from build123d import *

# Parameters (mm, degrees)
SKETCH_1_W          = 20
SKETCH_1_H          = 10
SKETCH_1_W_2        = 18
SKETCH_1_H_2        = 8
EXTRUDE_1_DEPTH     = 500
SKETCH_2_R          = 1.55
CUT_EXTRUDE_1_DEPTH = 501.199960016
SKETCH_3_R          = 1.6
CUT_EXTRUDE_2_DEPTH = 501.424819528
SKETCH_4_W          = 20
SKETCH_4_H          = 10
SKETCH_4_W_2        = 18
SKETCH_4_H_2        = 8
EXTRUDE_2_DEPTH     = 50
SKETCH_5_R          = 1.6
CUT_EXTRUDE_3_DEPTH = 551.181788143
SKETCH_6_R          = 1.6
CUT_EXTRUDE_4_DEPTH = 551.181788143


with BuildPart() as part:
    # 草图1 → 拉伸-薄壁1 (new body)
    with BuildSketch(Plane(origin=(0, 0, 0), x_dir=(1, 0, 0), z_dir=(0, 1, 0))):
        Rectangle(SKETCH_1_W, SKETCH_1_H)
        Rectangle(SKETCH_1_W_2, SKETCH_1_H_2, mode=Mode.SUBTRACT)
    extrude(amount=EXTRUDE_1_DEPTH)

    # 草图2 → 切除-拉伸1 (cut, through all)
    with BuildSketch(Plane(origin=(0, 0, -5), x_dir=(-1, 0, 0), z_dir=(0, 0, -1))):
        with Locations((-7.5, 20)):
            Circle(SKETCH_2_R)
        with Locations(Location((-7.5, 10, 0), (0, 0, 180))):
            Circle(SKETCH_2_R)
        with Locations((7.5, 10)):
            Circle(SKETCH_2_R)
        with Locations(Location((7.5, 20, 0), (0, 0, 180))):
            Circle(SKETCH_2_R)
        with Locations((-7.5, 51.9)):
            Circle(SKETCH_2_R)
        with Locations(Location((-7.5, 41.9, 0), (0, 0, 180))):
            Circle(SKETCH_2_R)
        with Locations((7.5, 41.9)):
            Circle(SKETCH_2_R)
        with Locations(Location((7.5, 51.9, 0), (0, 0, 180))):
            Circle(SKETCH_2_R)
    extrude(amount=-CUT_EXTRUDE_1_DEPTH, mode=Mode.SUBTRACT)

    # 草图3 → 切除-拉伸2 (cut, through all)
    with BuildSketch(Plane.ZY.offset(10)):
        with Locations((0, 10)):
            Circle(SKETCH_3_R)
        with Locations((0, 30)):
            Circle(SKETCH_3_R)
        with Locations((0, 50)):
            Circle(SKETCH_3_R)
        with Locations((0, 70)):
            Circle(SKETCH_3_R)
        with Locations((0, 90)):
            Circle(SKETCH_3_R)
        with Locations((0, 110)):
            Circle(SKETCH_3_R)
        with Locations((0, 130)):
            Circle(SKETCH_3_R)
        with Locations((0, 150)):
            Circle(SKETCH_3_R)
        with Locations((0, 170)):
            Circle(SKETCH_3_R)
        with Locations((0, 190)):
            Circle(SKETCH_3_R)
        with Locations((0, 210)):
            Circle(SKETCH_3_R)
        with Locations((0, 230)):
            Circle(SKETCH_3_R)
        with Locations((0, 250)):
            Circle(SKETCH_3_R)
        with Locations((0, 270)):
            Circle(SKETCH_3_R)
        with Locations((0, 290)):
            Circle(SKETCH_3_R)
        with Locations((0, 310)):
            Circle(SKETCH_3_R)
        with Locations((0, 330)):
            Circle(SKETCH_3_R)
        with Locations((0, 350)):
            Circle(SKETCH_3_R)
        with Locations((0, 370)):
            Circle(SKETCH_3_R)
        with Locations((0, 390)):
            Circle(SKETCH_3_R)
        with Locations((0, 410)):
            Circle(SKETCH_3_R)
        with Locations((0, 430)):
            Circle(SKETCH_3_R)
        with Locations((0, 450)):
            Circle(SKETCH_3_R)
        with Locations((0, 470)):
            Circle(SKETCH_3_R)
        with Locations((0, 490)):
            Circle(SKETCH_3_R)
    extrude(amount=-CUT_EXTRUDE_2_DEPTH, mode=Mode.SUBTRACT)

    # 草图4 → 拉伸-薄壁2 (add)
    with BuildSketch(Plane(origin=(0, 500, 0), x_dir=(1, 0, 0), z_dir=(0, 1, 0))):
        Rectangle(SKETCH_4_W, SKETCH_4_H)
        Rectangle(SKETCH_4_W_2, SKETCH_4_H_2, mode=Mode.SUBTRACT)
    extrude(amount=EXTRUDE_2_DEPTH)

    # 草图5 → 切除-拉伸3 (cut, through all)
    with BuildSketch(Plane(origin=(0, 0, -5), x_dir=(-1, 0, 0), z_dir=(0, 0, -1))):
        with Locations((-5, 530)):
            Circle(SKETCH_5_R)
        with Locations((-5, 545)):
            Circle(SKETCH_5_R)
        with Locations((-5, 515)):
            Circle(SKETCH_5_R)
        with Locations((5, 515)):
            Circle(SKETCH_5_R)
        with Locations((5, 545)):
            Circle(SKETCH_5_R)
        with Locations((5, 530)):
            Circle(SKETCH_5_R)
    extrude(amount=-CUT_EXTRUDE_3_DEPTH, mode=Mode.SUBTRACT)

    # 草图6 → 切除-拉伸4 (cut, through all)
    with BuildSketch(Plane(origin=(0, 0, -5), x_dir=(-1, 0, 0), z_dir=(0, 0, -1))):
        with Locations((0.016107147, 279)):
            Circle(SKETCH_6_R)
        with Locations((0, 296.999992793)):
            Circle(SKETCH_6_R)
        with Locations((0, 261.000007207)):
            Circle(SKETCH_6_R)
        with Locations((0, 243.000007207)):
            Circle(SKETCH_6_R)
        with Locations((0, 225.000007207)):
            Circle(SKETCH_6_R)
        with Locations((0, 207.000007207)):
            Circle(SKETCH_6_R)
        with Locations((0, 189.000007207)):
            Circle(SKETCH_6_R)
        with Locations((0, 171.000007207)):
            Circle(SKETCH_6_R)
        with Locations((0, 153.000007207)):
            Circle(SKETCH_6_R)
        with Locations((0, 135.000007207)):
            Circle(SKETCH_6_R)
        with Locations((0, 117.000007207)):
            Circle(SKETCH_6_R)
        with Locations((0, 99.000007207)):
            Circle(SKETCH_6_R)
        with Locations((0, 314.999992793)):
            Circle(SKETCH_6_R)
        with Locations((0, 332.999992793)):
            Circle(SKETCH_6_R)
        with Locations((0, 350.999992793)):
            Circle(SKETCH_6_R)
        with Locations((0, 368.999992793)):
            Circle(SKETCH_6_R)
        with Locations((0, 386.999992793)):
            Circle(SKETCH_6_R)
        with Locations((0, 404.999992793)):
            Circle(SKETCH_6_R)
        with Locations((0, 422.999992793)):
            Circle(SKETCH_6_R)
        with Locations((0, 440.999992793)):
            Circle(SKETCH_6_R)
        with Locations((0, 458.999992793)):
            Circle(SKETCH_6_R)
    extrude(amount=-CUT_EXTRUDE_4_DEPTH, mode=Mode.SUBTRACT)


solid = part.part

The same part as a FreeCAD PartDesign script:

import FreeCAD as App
import Part
import Sketcher
from FreeCAD import Vector
Q = App.Units.Quantity


def add_polygon(sketch, points):
    """Adds a closed chain of lines whose ends are joined by coincident constraints."""
    first, n = sketch.GeometryCount, len(points)
    for a, b in zip(points, points[1:] + points[:1]):
        sketch.addGeometry(Part.LineSegment(App.Vector(*a, 0), App.Vector(*b, 0)), False)
    for i in range(n):
        sketch.addConstraint(Sketcher.Constraint("Coincident", first + i, 2, first + (i + 1) % n, 1))

doc = App.newDocument("Part")
body = doc.addObject("PartDesign::Body", "Body")

# Sketch on XZ plane
sketch1 = doc.addObject("Sketcher::SketchObject", "Sketch")
body.addObject(sketch1)
sketch1.AttachmentSupport = (doc.XZ_Plane, [""])
sketch1.MapMode = "FlatFace"
add_polygon(sketch1, [(-10, -5), (-10, 5), (10, 5), (10, -5)])  # lines 0-3
add_polygon(sketch1, [(9, 4), (-9, 4), (-9, -4), (9, -4)])  # lines 4-7
sketch1.addConstraint(Sketcher.Constraint("Vertical", 0))
sketch1.addConstraint(Sketcher.Constraint("Horizontal", 1))
sketch1.addConstraint(Sketcher.Constraint("Vertical", 2))
sketch1.addConstraint(Sketcher.Constraint("Horizontal", 3))
sketch1.addConstraint(Sketcher.Constraint("Horizontal", 4))
sketch1.addConstraint(Sketcher.Constraint("Vertical", 5))
sketch1.addConstraint(Sketcher.Constraint("Horizontal", 6))
sketch1.addConstraint(Sketcher.Constraint("Vertical", 7))
sketch1.addConstraint(Sketcher.Constraint("Symmetric", 0, 2, 2, 2, -1, 1))
sketch1.addConstraint(Sketcher.Constraint("Symmetric", 4, 2, 6, 2, -1, 1))
sketch1.addConstraint(Sketcher.Constraint("DistanceX", 1, 1, 1, 2, Q("20 mm")))
sketch1.addConstraint(Sketcher.Constraint("DistanceX", 4, 2, 4, 1, Q("18 mm")))
sketch1.addConstraint(Sketcher.Constraint("DistanceY", 0, 1, 0, 2, Q("10 mm")))
sketch1.addConstraint(Sketcher.Constraint("DistanceY", 5, 2, 5, 1, Q("8 mm")))
pad1 = doc.addObject("PartDesign::Pad", "Pad")
body.addObject(pad1)
pad1.Profile = sketch1
pad1.Length = 500
pad1.Reversed = True

# Sketch on XY plane
sketch2 = doc.addObject("Sketcher::SketchObject", "Sketch001")
body.addObject(sketch2)
sketch2.AttachmentSupport = (doc.XY_Plane, [""])
sketch2.MapMode = "FlatFace"
sketch2.AttachmentOffset = App.Placement(Vector(0, 0, -5), App.Rotation())
sketch2.addGeometry(Part.Circle(Vector(7.5, 20, 0), Vector(0, 0, 1), 1.6), False)
sketch2.addGeometry(Part.Circle(Vector(7.5, 10, 0), Vector(0, 0, 1), 1.6), False)
sketch2.addGeometry(Part.Circle(Vector(-7.5, 10, 0), Vector(0, 0, 1), 1.6), False)
sketch2.addGeometry(Part.Circle(Vector(-7.5, 20, 0), Vector(0, 0, 1), 1.6), False)
sketch2.addGeometry(Part.Circle(Vector(7.5, 51.9, 0), Vector(0, 0, 1), 1.6), False)
sketch2.addGeometry(Part.Circle(Vector(7.5, 41.9, 0), Vector(0, 0, 1), 1.6), False)
sketch2.addGeometry(Part.Circle(Vector(-7.5, 41.9, 0), Vector(0, 0, 1), 1.6), False)
sketch2.addGeometry(Part.Circle(Vector(-7.5, 51.9, 0), Vector(0, 0, 1), 1.6), False)
sketch2.addConstraint(Sketcher.Constraint("Equal", 0, 1))
sketch2.addConstraint(Sketcher.Constraint("Equal", 1, 2))
sketch2.addConstraint(Sketcher.Constraint("Equal", 2, 3))
sketch2.addConstraint(Sketcher.Constraint("Equal", 3, 4))
sketch2.addConstraint(Sketcher.Constraint("Equal", 4, 5))
sketch2.addConstraint(Sketcher.Constraint("Equal", 5, 6))
sketch2.addConstraint(Sketcher.Constraint("Equal", 6, 7))
sketch2.addConstraint(Sketcher.Constraint("Symmetric", 1, 3, 2, 3, -2))
sketch2.addConstraint(Sketcher.Constraint("Symmetric", 0, 3, 3, 3, -2))
sketch2.addConstraint(Sketcher.Constraint("Symmetric", 5, 3, 6, 3, -2))
sketch2.addConstraint(Sketcher.Constraint("Symmetric", 4, 3, 7, 3, -2))
sketch2.addConstraint(Sketcher.Constraint("Vertical", 0, 3, 1, 3))
sketch2.addConstraint(Sketcher.Constraint("Vertical", 1, 3, 4, 3))
sketch2.addConstraint(Sketcher.Constraint("Vertical", 4, 3, 5, 3))
sketch2.addConstraint(Sketcher.Constraint("Diameter", 0, Q("3.1 mm")))
sketch2.addConstraint(Sketcher.Constraint("DistanceY", -1, 1, 0, 3, Q("20 mm")))
sketch2.addConstraint(Sketcher.Constraint("DistanceY", -1, 1, 1, 3, Q("10 mm")))
sketch2.addConstraint(Sketcher.Constraint("DistanceX", 2, 3, 1, 3, Q("15 mm")))
sketch2.addConstraint(Sketcher.Constraint("DistanceY", 5, 3, 4, 3, Q("10 mm")))
sketch2.addConstraint(Sketcher.Constraint("DistanceY", -1, 1, 4, 3, Q("51.9 mm")))
pocket1 = doc.addObject("PartDesign::Pocket", "Pocket")
body.addObject(pocket1)
pocket1.Profile = sketch2
pocket1.Type = "ThroughAll"
pocket1.Reversed = True

# Sketch on YZ plane
sketch3 = doc.addObject("Sketcher::SketchObject", "Sketch002")
body.addObject(sketch3)
sketch3.AttachmentSupport = (doc.YZ_Plane, [""])
sketch3.MapMode = "FlatFace"
sketch3.AttachmentOffset = App.Placement(Vector(0, 0, -10), App.Rotation())
sketch3.addGeometry(Part.Circle(Vector(10, 0, 0), Vector(0, 0, 1), 1.6), False)
sketch3.addGeometry(Part.Circle(Vector(30, 0, 0), Vector(0, 0, 1), 1.6), False)
sketch3.addGeometry(Part.Circle(Vector(50, 0, 0), Vector(0, 0, 1), 1.6), False)
sketch3.addGeometry(Part.Circle(Vector(70, 0, 0), Vector(0, 0, 1), 1.6), False)
sketch3.addGeometry(Part.Circle(Vector(90, 0, 0), Vector(0, 0, 1), 1.6), False)
sketch3.addGeometry(Part.Circle(Vector(110, 0, 0), Vector(0, 0, 1), 1.6), False)
sketch3.addGeometry(Part.Circle(Vector(130, 0, 0), Vector(0, 0, 1), 1.6), False)
sketch3.addGeometry(Part.Circle(Vector(150, 0, 0), Vector(0, 0, 1), 1.6), False)
sketch3.addGeometry(Part.Circle(Vector(170, 0, 0), Vector(0, 0, 1), 1.6), False)
sketch3.addGeometry(Part.Circle(Vector(190, 0, 0), Vector(0, 0, 1), 1.6), False)
sketch3.addGeometry(Part.Circle(Vector(210, 0, 0), Vector(0, 0, 1), 1.6), False)
sketch3.addGeometry(Part.Circle(Vector(230, 0, 0), Vector(0, 0, 1), 1.6), False)
sketch3.addGeometry(Part.Circle(Vector(250, 0, 0), Vector(0, 0, 1), 1.6), False)
sketch3.addGeometry(Part.Circle(Vector(270, 0, 0), Vector(0, 0, 1), 1.6), False)
sketch3.addGeometry(Part.Circle(Vector(290, 0, 0), Vector(0, 0, 1), 1.6), False)
sketch3.addGeometry(Part.Circle(Vector(310, 0, 0), Vector(0, 0, 1), 1.6), False)
sketch3.addGeometry(Part.Circle(Vector(330, 0, 0), Vector(0, 0, 1), 1.6), False)
sketch3.addGeometry(Part.Circle(Vector(350, 0, 0), Vector(0, 0, 1), 1.6), False)
sketch3.addGeometry(Part.Circle(Vector(370, 0, 0), Vector(0, 0, 1), 1.6), False)
sketch3.addGeometry(Part.Circle(Vector(390, 0, 0), Vector(0, 0, 1), 1.6), False)
sketch3.addGeometry(Part.Circle(Vector(410, 0, 0), Vector(0, 0, 1), 1.6), False)
sketch3.addGeometry(Part.Circle(Vector(430, 0, 0), Vector(0, 0, 1), 1.6), False)
sketch3.addGeometry(Part.Circle(Vector(450, 0, 0), Vector(0, 0, 1), 1.6), False)
sketch3.addGeometry(Part.Circle(Vector(470, 0, 0), Vector(0, 0, 1), 1.6), False)
sketch3.addGeometry(Part.Circle(Vector(490, 0, 0), Vector(0, 0, 1), 1.6), False)
sketch3.addConstraint(Sketcher.Constraint("Equal", 0, 1))
sketch3.addConstraint(Sketcher.Constraint("Equal", 1, 2))
sketch3.addConstraint(Sketcher.Constraint("Equal", 2, 3))
sketch3.addConstraint(Sketcher.Constraint("Equal", 3, 4))
sketch3.addConstraint(Sketcher.Constraint("Equal", 4, 5))
sketch3.addConstraint(Sketcher.Constraint("Equal", 5, 6))
sketch3.addConstraint(Sketcher.Constraint("Equal", 6, 7))
sketch3.addConstraint(Sketcher.Constraint("Equal", 7, 8))
sketch3.addConstraint(Sketcher.Constraint("Equal", 8, 9))
sketch3.addConstraint(Sketcher.Constraint("Equal", 9, 10))
sketch3.addConstraint(Sketcher.Constraint("Equal", 10, 11))
sketch3.addConstraint(Sketcher.Constraint("Equal", 11, 12))
sketch3.addConstraint(Sketcher.Constraint("Equal", 12, 13))
sketch3.addConstraint(Sketcher.Constraint("Equal", 13, 14))
sketch3.addConstraint(Sketcher.Constraint("Equal", 14, 15))
sketch3.addConstraint(Sketcher.Constraint("Equal", 15, 16))
sketch3.addConstraint(Sketcher.Constraint("Equal", 16, 17))
sketch3.addConstraint(Sketcher.Constraint("Equal", 17, 18))
sketch3.addConstraint(Sketcher.Constraint("Equal", 18, 19))
sketch3.addConstraint(Sketcher.Constraint("Equal", 19, 20))
sketch3.addConstraint(Sketcher.Constraint("Equal", 20, 21))
sketch3.addConstraint(Sketcher.Constraint("Equal", 21, 22))
sketch3.addConstraint(Sketcher.Constraint("Equal", 22, 23))
sketch3.addConstraint(Sketcher.Constraint("Equal", 23, 24))
sketch3.addConstraint(Sketcher.Constraint("PointOnObject", 0, 3, -1))
sketch3.addConstraint(Sketcher.Constraint("PointOnObject", 1, 3, -1))
sketch3.addConstraint(Sketcher.Constraint("PointOnObject", 2, 3, -1))
sketch3.addConstraint(Sketcher.Constraint("PointOnObject", 3, 3, -1))
sketch3.addConstraint(Sketcher.Constraint("PointOnObject", 4, 3, -1))
sketch3.addConstraint(Sketcher.Constraint("PointOnObject", 5, 3, -1))
sketch3.addConstraint(Sketcher.Constraint("PointOnObject", 6, 3, -1))
sketch3.addConstraint(Sketcher.Constraint("PointOnObject", 7, 3, -1))
sketch3.addConstraint(Sketcher.Constraint("PointOnObject", 8, 3, -1))
sketch3.addConstraint(Sketcher.Constraint("PointOnObject", 9, 3, -1))
sketch3.addConstraint(Sketcher.Constraint("PointOnObject", 10, 3, -1))
sketch3.addConstraint(Sketcher.Constraint("PointOnObject", 11, 3, -1))
sketch3.addConstraint(Sketcher.Constraint("PointOnObject", 12, 3, -1))
sketch3.addConstraint(Sketcher.Constraint("PointOnObject", 13, 3, -1))
sketch3.addConstraint(Sketcher.Constraint("PointOnObject", 14, 3, -1))
sketch3.addConstraint(Sketcher.Constraint("PointOnObject", 15, 3, -1))
sketch3.addConstraint(Sketcher.Constraint("PointOnObject", 16, 3, -1))
sketch3.addConstraint(Sketcher.Constraint("PointOnObject", 17, 3, -1))
sketch3.addConstraint(Sketcher.Constraint("PointOnObject", 18, 3, -1))
sketch3.addConstraint(Sketcher.Constraint("PointOnObject", 19, 3, -1))
sketch3.addConstraint(Sketcher.Constraint("PointOnObject", 20, 3, -1))
sketch3.addConstraint(Sketcher.Constraint("PointOnObject", 21, 3, -1))
sketch3.addConstraint(Sketcher.Constraint("PointOnObject", 22, 3, -1))
sketch3.addConstraint(Sketcher.Constraint("PointOnObject", 23, 3, -1))
sketch3.addConstraint(Sketcher.Constraint("PointOnObject", 24, 3, -1))
sketch3.addConstraint(Sketcher.Constraint("Diameter", 0, Q("3.2 mm")))
sketch3.addConstraint(Sketcher.Constraint("DistanceX", -1, 1, 0, 3, Q("10 mm")))
sketch3.addConstraint(Sketcher.Constraint("DistanceX", -1, 1, 1, 3, Q("30 mm")))
sketch3.addConstraint(Sketcher.Constraint("DistanceX", -1, 1, 2, 3, Q("50 mm")))
sketch3.addConstraint(Sketcher.Constraint("DistanceX", -1, 1, 3, 3, Q("70 mm")))
sketch3.addConstraint(Sketcher.Constraint("DistanceX", -1, 1, 4, 3, Q("90 mm")))
sketch3.addConstraint(Sketcher.Constraint("DistanceX", -1, 1, 5, 3, Q("110 mm")))
sketch3.addConstraint(Sketcher.Constraint("DistanceX", -1, 1, 6, 3, Q("130 mm")))
sketch3.addConstraint(Sketcher.Constraint("DistanceX", -1, 1, 7, 3, Q("150 mm")))
sketch3.addConstraint(Sketcher.Constraint("DistanceX", -1, 1, 8, 3, Q("170 mm")))
sketch3.addConstraint(Sketcher.Constraint("DistanceX", -1, 1, 9, 3, Q("190 mm")))
sketch3.addConstraint(Sketcher.Constraint("DistanceX", -1, 1, 10, 3, Q("210 mm")))
sketch3.addConstraint(Sketcher.Constraint("DistanceX", -1, 1, 11, 3, Q("230 mm")))
sketch3.addConstraint(Sketcher.Constraint("DistanceX", -1, 1, 12, 3, Q("250 mm")))
sketch3.addConstraint(Sketcher.Constraint("DistanceX", -1, 1, 13, 3, Q("270 mm")))
sketch3.addConstraint(Sketcher.Constraint("DistanceX", -1, 1, 14, 3, Q("290 mm")))
sketch3.addConstraint(Sketcher.Constraint("DistanceX", -1, 1, 15, 3, Q("310 mm")))
sketch3.addConstraint(Sketcher.Constraint("DistanceX", -1, 1, 16, 3, Q("330 mm")))
sketch3.addConstraint(Sketcher.Constraint("DistanceX", -1, 1, 17, 3, Q("350 mm")))
sketch3.addConstraint(Sketcher.Constraint("DistanceX", -1, 1, 18, 3, Q("370 mm")))
sketch3.addConstraint(Sketcher.Constraint("DistanceX", -1, 1, 19, 3, Q("390 mm")))
sketch3.addConstraint(Sketcher.Constraint("DistanceX", -1, 1, 20, 3, Q("410 mm")))
sketch3.addConstraint(Sketcher.Constraint("DistanceX", -1, 1, 21, 3, Q("430 mm")))
sketch3.addConstraint(Sketcher.Constraint("DistanceX", -1, 1, 22, 3, Q("450 mm")))
sketch3.addConstraint(Sketcher.Constraint("DistanceX", -1, 1, 23, 3, Q("470 mm")))
sketch3.addConstraint(Sketcher.Constraint("DistanceX", -1, 1, 24, 3, Q("490 mm")))
pocket2 = doc.addObject("PartDesign::Pocket", "Pocket001")
body.addObject(pocket2)
pocket2.Profile = sketch3
pocket2.Type = "ThroughAll"
pocket2.Reversed = True

# Sketch on XZ plane
sketch4 = doc.addObject("Sketcher::SketchObject", "Sketch003")
body.addObject(sketch4)
sketch4.AttachmentSupport = (doc.XZ_Plane, [""])
sketch4.MapMode = "FlatFace"
sketch4.AttachmentOffset = App.Placement(Vector(0, 0, -500), App.Rotation())
add_polygon(sketch4, [(-10, -5), (-10, 5), (10, 5), (10, -5)])  # lines 0-3
add_polygon(sketch4, [(9, 4), (-9, 4), (-9, -4), (9, -4)])  # lines 4-7
sketch4.addConstraint(Sketcher.Constraint("Vertical", 0))
sketch4.addConstraint(Sketcher.Constraint("Horizontal", 1))
sketch4.addConstraint(Sketcher.Constraint("Vertical", 2))
sketch4.addConstraint(Sketcher.Constraint("Horizontal", 3))
sketch4.addConstraint(Sketcher.Constraint("Horizontal", 4))
sketch4.addConstraint(Sketcher.Constraint("Vertical", 5))
sketch4.addConstraint(Sketcher.Constraint("Horizontal", 6))
sketch4.addConstraint(Sketcher.Constraint("Vertical", 7))
sketch4.addConstraint(Sketcher.Constraint("Symmetric", 0, 2, 2, 2, -1, 1))
sketch4.addConstraint(Sketcher.Constraint("Symmetric", 4, 2, 6, 2, -1, 1))
sketch4.addConstraint(Sketcher.Constraint("DistanceX", 1, 1, 1, 2, Q("20 mm")))
sketch4.addConstraint(Sketcher.Constraint("DistanceX", 4, 2, 4, 1, Q("18 mm")))
sketch4.addConstraint(Sketcher.Constraint("DistanceY", 0, 1, 0, 2, Q("10 mm")))
sketch4.addConstraint(Sketcher.Constraint("DistanceY", 5, 2, 5, 1, Q("8 mm")))
pad2 = doc.addObject("PartDesign::Pad", "Pad001")
body.addObject(pad2)
pad2.Profile = sketch4
pad2.Length = 50
pad2.Reversed = True

# Sketch on XY plane
sketch5 = doc.addObject("Sketcher::SketchObject", "Sketch004")
body.addObject(sketch5)
sketch5.AttachmentSupport = (doc.XY_Plane, [""])
sketch5.MapMode = "FlatFace"
sketch5.AttachmentOffset = App.Placement(Vector(0, 0, -5), App.Rotation())
sketch5.addGeometry(Part.Circle(Vector(5, 530, 0), Vector(0, 0, 1), 1.6), False)
sketch5.addGeometry(Part.Circle(Vector(5, 545, 0), Vector(0, 0, 1), 1.6), False)
sketch5.addGeometry(Part.Circle(Vector(5, 515, 0), Vector(0, 0, 1), 1.6), False)
sketch5.addGeometry(Part.Circle(Vector(-5, 515, 0), Vector(0, 0, 1), 1.6), False)
sketch5.addGeometry(Part.Circle(Vector(-5, 545, 0), Vector(0, 0, 1), 1.6), False)
sketch5.addGeometry(Part.Circle(Vector(-5, 530, 0), Vector(0, 0, 1), 1.6), False)
sketch5.addConstraint(Sketcher.Constraint("Equal", 0, 1))
sketch5.addConstraint(Sketcher.Constraint("Equal", 1, 2))
sketch5.addConstraint(Sketcher.Constraint("Equal", 2, 3))
sketch5.addConstraint(Sketcher.Constraint("Equal", 3, 4))
sketch5.addConstraint(Sketcher.Constraint("Equal", 4, 5))
sketch5.addConstraint(Sketcher.Constraint("Symmetric", 2, 3, 3, 3, -2))
sketch5.addConstraint(Sketcher.Constraint("Symmetric", 1, 3, 4, 3, -2))
sketch5.addConstraint(Sketcher.Constraint("Symmetric", 0, 3, 5, 3, -2))
sketch5.addConstraint(Sketcher.Constraint("Vertical", 0, 3, 1, 3))
sketch5.addConstraint(Sketcher.Constraint("Vertical", 1, 3, 2, 3))
sketch5.addConstraint(Sketcher.Constraint("Diameter", 0, Q("3.2 mm")))
sketch5.addConstraint(Sketcher.Constraint("DistanceX", -1, 1, 0, 3, Q("5 mm")))
sketch5.addConstraint(Sketcher.Constraint("DistanceY", -1, 1, 0, 3, Q("530 mm")))
sketch5.addConstraint(Sketcher.Constraint("DistanceY", -1, 1, 1, 3, Q("545 mm")))
sketch5.addConstraint(Sketcher.Constraint("DistanceY", -1, 1, 2, 3, Q("515 mm")))
pocket3 = doc.addObject("PartDesign::Pocket", "Pocket002")
body.addObject(pocket3)
pocket3.Profile = sketch5
pocket3.Type = "ThroughAll"
pocket3.Reversed = True

# Sketch on XY plane
sketch6 = doc.addObject("Sketcher::SketchObject", "Sketch005")
body.addObject(sketch6)
sketch6.AttachmentSupport = (doc.XY_Plane, [""])
sketch6.MapMode = "FlatFace"
sketch6.AttachmentOffset = App.Placement(Vector(0, 0, -5), App.Rotation())
sketch6.addGeometry(Part.Circle(Vector(0, 279, 0), Vector(0, 0, 1), 1.6), False)
sketch6.addGeometry(Part.Circle(Vector(0, 297, 0), Vector(0, 0, 1), 1.6), False)
sketch6.addGeometry(Part.Circle(Vector(0, 261, 0), Vector(0, 0, 1), 1.6), False)
sketch6.addGeometry(Part.Circle(Vector(0, 243, 0), Vector(0, 0, 1), 1.6), False)
sketch6.addGeometry(Part.Circle(Vector(0, 225, 0), Vector(0, 0, 1), 1.6), False)
sketch6.addGeometry(Part.Circle(Vector(0, 207, 0), Vector(0, 0, 1), 1.6), False)
sketch6.addGeometry(Part.Circle(Vector(0, 189, 0), Vector(0, 0, 1), 1.6), False)
sketch6.addGeometry(Part.Circle(Vector(0, 171, 0), Vector(0, 0, 1), 1.6), False)
sketch6.addGeometry(Part.Circle(Vector(0, 153, 0), Vector(0, 0, 1), 1.6), False)
sketch6.addGeometry(Part.Circle(Vector(0, 135, 0), Vector(0, 0, 1), 1.6), False)
sketch6.addGeometry(Part.Circle(Vector(0, 117, 0), Vector(0, 0, 1), 1.6), False)
sketch6.addGeometry(Part.Circle(Vector(0, 99, 0), Vector(0, 0, 1), 1.6), False)
sketch6.addGeometry(Part.Circle(Vector(0, 315, 0), Vector(0, 0, 1), 1.6), False)
sketch6.addGeometry(Part.Circle(Vector(0, 333, 0), Vector(0, 0, 1), 1.6), False)
sketch6.addGeometry(Part.Circle(Vector(0, 351, 0), Vector(0, 0, 1), 1.6), False)
sketch6.addGeometry(Part.Circle(Vector(0, 369, 0), Vector(0, 0, 1), 1.6), False)
sketch6.addGeometry(Part.Circle(Vector(0, 387, 0), Vector(0, 0, 1), 1.6), False)
sketch6.addGeometry(Part.Circle(Vector(0, 405, 0), Vector(0, 0, 1), 1.6), False)
sketch6.addGeometry(Part.Circle(Vector(0, 423, 0), Vector(0, 0, 1), 1.6), False)
sketch6.addGeometry(Part.Circle(Vector(0, 441, 0), Vector(0, 0, 1), 1.6), False)
sketch6.addGeometry(Part.Circle(Vector(0, 459, 0), Vector(0, 0, 1), 1.6), False)
sketch6.addConstraint(Sketcher.Constraint("Equal", 0, 1))
sketch6.addConstraint(Sketcher.Constraint("Equal", 1, 2))
sketch6.addConstraint(Sketcher.Constraint("Equal", 2, 3))
sketch6.addConstraint(Sketcher.Constraint("Equal", 3, 4))
sketch6.addConstraint(Sketcher.Constraint("Equal", 4, 5))
sketch6.addConstraint(Sketcher.Constraint("Equal", 5, 6))
sketch6.addConstraint(Sketcher.Constraint("Equal", 6, 7))
sketch6.addConstraint(Sketcher.Constraint("Equal", 7, 8))
sketch6.addConstraint(Sketcher.Constraint("Equal", 8, 9))
sketch6.addConstraint(Sketcher.Constraint("Equal", 9, 10))
sketch6.addConstraint(Sketcher.Constraint("Equal", 10, 11))
sketch6.addConstraint(Sketcher.Constraint("Equal", 11, 12))
sketch6.addConstraint(Sketcher.Constraint("Equal", 12, 13))
sketch6.addConstraint(Sketcher.Constraint("Equal", 13, 14))
sketch6.addConstraint(Sketcher.Constraint("Equal", 14, 15))
sketch6.addConstraint(Sketcher.Constraint("Equal", 15, 16))
sketch6.addConstraint(Sketcher.Constraint("Equal", 16, 17))
sketch6.addConstraint(Sketcher.Constraint("Equal", 17, 18))
sketch6.addConstraint(Sketcher.Constraint("Equal", 18, 19))
sketch6.addConstraint(Sketcher.Constraint("Equal", 19, 20))
sketch6.addConstraint(Sketcher.Constraint("PointOnObject", 1, 3, -2))
sketch6.addConstraint(Sketcher.Constraint("PointOnObject", 2, 3, -2))
sketch6.addConstraint(Sketcher.Constraint("PointOnObject", 3, 3, -2))
sketch6.addConstraint(Sketcher.Constraint("PointOnObject", 4, 3, -2))
sketch6.addConstraint(Sketcher.Constraint("PointOnObject", 5, 3, -2))
sketch6.addConstraint(Sketcher.Constraint("PointOnObject", 6, 3, -2))
sketch6.addConstraint(Sketcher.Constraint("PointOnObject", 7, 3, -2))
sketch6.addConstraint(Sketcher.Constraint("PointOnObject", 8, 3, -2))
sketch6.addConstraint(Sketcher.Constraint("PointOnObject", 9, 3, -2))
sketch6.addConstraint(Sketcher.Constraint("PointOnObject", 10, 3, -2))
sketch6.addConstraint(Sketcher.Constraint("PointOnObject", 11, 3, -2))
sketch6.addConstraint(Sketcher.Constraint("PointOnObject", 12, 3, -2))
sketch6.addConstraint(Sketcher.Constraint("PointOnObject", 13, 3, -2))
sketch6.addConstraint(Sketcher.Constraint("PointOnObject", 14, 3, -2))
sketch6.addConstraint(Sketcher.Constraint("PointOnObject", 15, 3, -2))
sketch6.addConstraint(Sketcher.Constraint("PointOnObject", 16, 3, -2))
sketch6.addConstraint(Sketcher.Constraint("PointOnObject", 17, 3, -2))
sketch6.addConstraint(Sketcher.Constraint("PointOnObject", 18, 3, -2))
sketch6.addConstraint(Sketcher.Constraint("PointOnObject", 19, 3, -2))
sketch6.addConstraint(Sketcher.Constraint("PointOnObject", 20, 3, -2))
sketch6.addConstraint(Sketcher.Constraint("Diameter", 0, Q("3.2 mm")))
sketch6.addConstraint(Sketcher.Constraint("DistanceY", -1, 1, 0, 3, Q("279 mm")))
sketch6.addConstraint(Sketcher.Constraint("DistanceY", 3, 3, 2, 3, Q("18 mm")))
sketch6.addConstraint(Sketcher.Constraint("DistanceY", 4, 3, 3, 3, Q("18 mm")))
sketch6.addConstraint(Sketcher.Constraint("DistanceY", 5, 3, 4, 3, Q("18 mm")))
sketch6.addConstraint(Sketcher.Constraint("DistanceY", 6, 3, 5, 3, Q("18 mm")))
sketch6.addConstraint(Sketcher.Constraint("DistanceY", 7, 3, 6, 3, Q("18 mm")))
sketch6.addConstraint(Sketcher.Constraint("DistanceY", 8, 3, 7, 3, Q("18 mm")))
sketch6.addConstraint(Sketcher.Constraint("DistanceY", 9, 3, 8, 3, Q("18 mm")))
sketch6.addConstraint(Sketcher.Constraint("DistanceY", 10, 3, 9, 3, Q("18 mm")))
sketch6.addConstraint(Sketcher.Constraint("DistanceY", 11, 3, 10, 3, Q("18 mm")))
sketch6.addConstraint(Sketcher.Constraint("DistanceY", 1, 3, 12, 3, Q("18 mm")))
sketch6.addConstraint(Sketcher.Constraint("DistanceY", 12, 3, 13, 3, Q("18 mm")))
sketch6.addConstraint(Sketcher.Constraint("DistanceY", 13, 3, 14, 3, Q("18 mm")))
sketch6.addConstraint(Sketcher.Constraint("DistanceY", 14, 3, 15, 3, Q("18 mm")))
sketch6.addConstraint(Sketcher.Constraint("DistanceY", 15, 3, 16, 3, Q("18 mm")))
sketch6.addConstraint(Sketcher.Constraint("DistanceY", 16, 3, 17, 3, Q("18 mm")))
sketch6.addConstraint(Sketcher.Constraint("DistanceY", 17, 3, 18, 3, Q("18 mm")))
sketch6.addConstraint(Sketcher.Constraint("DistanceY", 18, 3, 19, 3, Q("18 mm")))
sketch6.addConstraint(Sketcher.Constraint("DistanceY", 19, 3, 20, 3, Q("18 mm")))
sketch6.addConstraint(Sketcher.Constraint("DistanceX", 0, 3, -1, 1, Q("0.016107 mm")))
sketch6.addConstraint(Sketcher.Constraint("DistanceY", -1, 1, 1, 3, Q("296.999993 mm")))
sketch6.addConstraint(Sketcher.Constraint("DistanceY", -1, 1, 2, 3, Q("261.000007 mm")))
pocket4 = doc.addObject("PartDesign::Pocket", "Pocket003")
body.addObject(pocket4)
pocket4.Profile = sketch6
pocket4.Type = "ThroughAll"
pocket4.Reversed = True

doc.recompute()
